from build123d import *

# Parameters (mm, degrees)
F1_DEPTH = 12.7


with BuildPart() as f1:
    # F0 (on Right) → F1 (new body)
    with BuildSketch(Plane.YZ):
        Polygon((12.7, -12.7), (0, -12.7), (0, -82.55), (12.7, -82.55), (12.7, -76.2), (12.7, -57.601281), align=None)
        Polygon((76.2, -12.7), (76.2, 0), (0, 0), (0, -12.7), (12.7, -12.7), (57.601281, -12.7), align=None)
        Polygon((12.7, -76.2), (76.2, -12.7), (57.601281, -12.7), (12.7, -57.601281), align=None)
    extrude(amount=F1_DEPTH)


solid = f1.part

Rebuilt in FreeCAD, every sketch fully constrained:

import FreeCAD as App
import Part
import Sketcher
from FreeCAD import Vector
Q = App.Units.Quantity


def add_polygon(sketch, points):
    """Adds a closed chain of lines whose ends are joined by coincident constraints."""
    first, n = sketch.GeometryCount, len(points)
    for a, b in zip(points, points[1:] + points[:1]):
        sketch.addGeometry(Part.LineSegment(App.Vector(*a, 0), App.Vector(*b, 0)), False)
    for i in range(n):
        sketch.addConstraint(Sketcher.Constraint("Coincident", first + i, 2, first + (i + 1) % n, 1))

doc = App.newDocument("Part")
params = doc.addObject("Spreadsheet::Sheet", "Params")
for row, (alias, value) in enumerate([
    ("sketch1_width", "3 in"),
    ("sketch1_width2", "0.5 in"),
    ("sketch1_length", "2.5 in"),
    ("sketch1_height", "0.25 in"),
    ("pad1_length", "0.5 in"),
], start=1):
    params.set(f"A{row}", alias)
    params.set(f"B{row}", "=" + value)
    params.setAlias(f"B{row}", alias)

body = doc.addObject("PartDesign::Body", "Body")

# Sketch on YZ plane
sketch1 = body.newObject("Sketcher::SketchObject", "Sketch")
sketch1.AttachmentSupport = (doc.getObject("YZ_Plane"), [""])
sketch1.MapMode = "FlatFace"
add_polygon(sketch1, [(0, -82.55), (12.7, -82.55), (12.7, -76.2), (76.2, -12.7), (76.2, 0), (0, 0)])  # lines 0-5
add_polygon(sketch1, [(12.7, -57.601281), (12.7, -12.7), (57.601281, -12.7)])  # lines 6-8
sketch1.addConstraint([
    Sketcher.Constraint("Horizontal", 0),
    Sketcher.Constraint("Vertical", 1),
    Sketcher.Constraint("Vertical", 3),
    Sketcher.Constraint("Horizontal", 4),
    Sketcher.Constraint("Vertical", 5),
    Sketcher.Constraint("Vertical", 6),
    Sketcher.Constraint("Horizontal", 7),
    Sketcher.Constraint("Coincident", 4, 2, -1, 1),
    Sketcher.Constraint("Parallel", 2, 8),
    Sketcher.Constraint("Horizontal", 2, 2, 6, 2),
    Sketcher.Constraint("Vertical", 1, 2, 6, 2),
    Sketcher.Constraint("Equal", 0, 3),
    Sketcher.Constraint("Equal", 7, 6),
    Sketcher.Constraint("DistanceX", 4, 2, 4, 1, Q("3 in")),
    Sketcher.Constraint("DistanceX", 0, 1, 0, 2, Q("0.5 in")),
    Sketcher.Constraint("Distance", 8, Q("2.5 in")),
    Sketcher.Constraint("DistanceY", 1, 1, 1, 2, Q("0.25 in")),
])
sketch1.setExpression("Constraints[22]", "Params.sketch1_width")
sketch1.setExpression("Constraints[23]", "Params.sketch1_width2")
sketch1.setExpression("Constraints[24]", "Params.sketch1_length")
sketch1.setExpression("Constraints[25]", "Params.sketch1_height")
pad1 = body.newObject("PartDesign::Pad", "Pad")
pad1.Profile = sketch1
pad1.setExpression("Length", "Params.pad1_length")

doc.recompute()
